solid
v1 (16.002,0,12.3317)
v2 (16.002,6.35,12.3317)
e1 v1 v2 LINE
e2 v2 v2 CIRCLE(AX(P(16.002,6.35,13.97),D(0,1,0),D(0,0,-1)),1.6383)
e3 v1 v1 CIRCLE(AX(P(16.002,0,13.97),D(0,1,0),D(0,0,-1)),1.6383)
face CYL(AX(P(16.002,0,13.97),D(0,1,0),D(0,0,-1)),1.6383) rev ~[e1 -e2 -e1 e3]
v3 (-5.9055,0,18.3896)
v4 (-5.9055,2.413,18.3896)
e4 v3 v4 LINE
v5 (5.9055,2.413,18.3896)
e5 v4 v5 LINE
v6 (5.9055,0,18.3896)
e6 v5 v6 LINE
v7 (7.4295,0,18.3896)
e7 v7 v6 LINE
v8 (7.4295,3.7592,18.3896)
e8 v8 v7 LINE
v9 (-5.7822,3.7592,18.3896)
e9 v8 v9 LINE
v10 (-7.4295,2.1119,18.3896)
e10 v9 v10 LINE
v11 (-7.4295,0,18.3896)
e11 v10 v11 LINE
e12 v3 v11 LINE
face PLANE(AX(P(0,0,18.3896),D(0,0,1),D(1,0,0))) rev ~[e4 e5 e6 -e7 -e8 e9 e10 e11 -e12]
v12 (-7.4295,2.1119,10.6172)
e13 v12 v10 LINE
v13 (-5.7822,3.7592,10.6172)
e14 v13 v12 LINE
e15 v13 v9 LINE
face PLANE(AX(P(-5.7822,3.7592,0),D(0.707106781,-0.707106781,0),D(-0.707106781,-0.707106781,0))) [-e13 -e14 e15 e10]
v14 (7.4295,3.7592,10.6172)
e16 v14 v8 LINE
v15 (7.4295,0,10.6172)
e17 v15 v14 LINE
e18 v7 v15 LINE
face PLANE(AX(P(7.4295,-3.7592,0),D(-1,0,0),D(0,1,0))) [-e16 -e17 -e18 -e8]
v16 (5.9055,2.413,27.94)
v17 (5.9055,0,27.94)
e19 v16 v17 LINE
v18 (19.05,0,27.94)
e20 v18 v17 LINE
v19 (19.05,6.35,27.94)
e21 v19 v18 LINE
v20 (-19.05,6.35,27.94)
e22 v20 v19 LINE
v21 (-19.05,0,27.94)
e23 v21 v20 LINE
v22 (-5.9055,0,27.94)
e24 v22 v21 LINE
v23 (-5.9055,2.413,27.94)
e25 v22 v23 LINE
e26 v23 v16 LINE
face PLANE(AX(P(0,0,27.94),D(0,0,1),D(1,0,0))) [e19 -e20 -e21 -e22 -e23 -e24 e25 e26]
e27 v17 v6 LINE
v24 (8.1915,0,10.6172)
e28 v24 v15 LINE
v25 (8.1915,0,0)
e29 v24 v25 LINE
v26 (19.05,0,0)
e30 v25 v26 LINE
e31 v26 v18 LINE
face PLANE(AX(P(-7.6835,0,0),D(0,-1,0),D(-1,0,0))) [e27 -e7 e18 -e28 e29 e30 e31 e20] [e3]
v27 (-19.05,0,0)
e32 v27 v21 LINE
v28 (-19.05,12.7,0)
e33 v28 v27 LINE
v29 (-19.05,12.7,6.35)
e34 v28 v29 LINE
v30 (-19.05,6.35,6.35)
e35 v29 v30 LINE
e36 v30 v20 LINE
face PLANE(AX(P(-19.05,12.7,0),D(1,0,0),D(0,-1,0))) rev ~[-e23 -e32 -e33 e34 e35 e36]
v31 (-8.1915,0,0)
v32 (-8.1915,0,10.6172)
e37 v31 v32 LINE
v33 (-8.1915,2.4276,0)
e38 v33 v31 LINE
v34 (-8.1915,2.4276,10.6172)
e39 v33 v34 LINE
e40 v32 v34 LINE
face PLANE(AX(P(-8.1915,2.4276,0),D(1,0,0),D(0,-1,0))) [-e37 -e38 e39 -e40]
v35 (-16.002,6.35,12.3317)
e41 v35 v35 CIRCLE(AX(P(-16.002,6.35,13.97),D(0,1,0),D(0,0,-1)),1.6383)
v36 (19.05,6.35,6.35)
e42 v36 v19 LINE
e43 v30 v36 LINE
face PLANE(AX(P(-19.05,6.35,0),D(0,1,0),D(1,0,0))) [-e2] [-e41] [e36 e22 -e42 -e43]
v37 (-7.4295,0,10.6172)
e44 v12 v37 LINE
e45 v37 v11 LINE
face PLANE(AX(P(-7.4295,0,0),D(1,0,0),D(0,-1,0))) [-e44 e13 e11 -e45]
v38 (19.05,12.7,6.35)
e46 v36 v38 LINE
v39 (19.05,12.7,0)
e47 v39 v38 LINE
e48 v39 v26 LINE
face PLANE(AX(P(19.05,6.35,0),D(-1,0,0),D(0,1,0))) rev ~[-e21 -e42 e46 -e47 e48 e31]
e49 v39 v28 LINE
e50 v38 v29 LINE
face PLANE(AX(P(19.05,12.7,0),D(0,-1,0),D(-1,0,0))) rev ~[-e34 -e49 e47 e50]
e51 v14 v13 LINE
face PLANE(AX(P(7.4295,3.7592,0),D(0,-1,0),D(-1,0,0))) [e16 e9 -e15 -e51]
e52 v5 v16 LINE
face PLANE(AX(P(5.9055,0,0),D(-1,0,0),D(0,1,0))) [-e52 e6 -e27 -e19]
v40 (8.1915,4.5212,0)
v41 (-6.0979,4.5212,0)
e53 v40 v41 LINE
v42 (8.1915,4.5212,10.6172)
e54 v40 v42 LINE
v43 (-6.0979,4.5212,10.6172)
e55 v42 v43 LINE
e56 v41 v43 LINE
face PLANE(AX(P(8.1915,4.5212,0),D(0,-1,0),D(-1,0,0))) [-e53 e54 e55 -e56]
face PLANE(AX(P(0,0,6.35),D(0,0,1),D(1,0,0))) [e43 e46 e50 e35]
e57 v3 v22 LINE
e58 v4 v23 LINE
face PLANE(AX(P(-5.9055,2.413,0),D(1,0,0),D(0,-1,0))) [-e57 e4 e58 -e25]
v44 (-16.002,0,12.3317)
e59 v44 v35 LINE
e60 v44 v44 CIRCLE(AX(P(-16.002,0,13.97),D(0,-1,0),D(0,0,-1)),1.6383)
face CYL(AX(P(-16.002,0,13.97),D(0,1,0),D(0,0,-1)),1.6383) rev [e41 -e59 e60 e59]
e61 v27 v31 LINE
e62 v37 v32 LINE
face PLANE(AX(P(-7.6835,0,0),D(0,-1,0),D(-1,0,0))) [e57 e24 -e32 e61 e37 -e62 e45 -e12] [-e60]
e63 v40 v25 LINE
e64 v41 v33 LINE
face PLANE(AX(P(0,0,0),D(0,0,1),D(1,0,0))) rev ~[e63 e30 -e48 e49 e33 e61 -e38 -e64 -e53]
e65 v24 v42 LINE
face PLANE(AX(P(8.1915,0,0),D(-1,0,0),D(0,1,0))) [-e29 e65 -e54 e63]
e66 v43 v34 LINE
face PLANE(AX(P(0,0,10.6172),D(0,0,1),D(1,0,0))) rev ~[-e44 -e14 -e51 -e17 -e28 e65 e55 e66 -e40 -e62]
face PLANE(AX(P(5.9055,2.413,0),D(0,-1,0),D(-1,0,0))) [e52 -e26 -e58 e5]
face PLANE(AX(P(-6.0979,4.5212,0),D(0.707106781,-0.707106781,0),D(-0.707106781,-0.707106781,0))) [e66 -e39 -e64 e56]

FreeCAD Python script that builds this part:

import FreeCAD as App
import Part
import Sketcher
from FreeCAD import Vector
Q = App.Units.Quantity

doc = App.newDocument("Part")
body = doc.addObject("PartDesign::Body", "Body")

sketch1 = body.newObject("Sketcher::SketchObject", "Sketch")
sketch1.AttachmentSupport = (doc.getObject("XY_Plane"), [""])
sketch1.MapMode = "FlatFace"
sketch1.addGeometry(Part.LineSegment(Vector(19, 0, 0), Vector(19, 6, 0)), False)
sketch1.addGeometry(Part.LineSegment(Vector(19, 6, 0), Vector(-19, 6, 0)), False)
sketch1.addGeometry(Part.LineSegment(Vector(-19, 6, 0), Vector(-19, 0, 0)), False)
sketch1.addGeometry(Part.LineSegment(Vector(-19, 0, 0), Vector(19, 0, 0)), False)
sketch1.addConstraint(Sketcher.Constraint("Coincident", 0, 2, 1, 1))
sketch1.addConstraint(Sketcher.Constraint("Coincident", 1, 2, 2, 1))
sketch1.addConstraint(Sketcher.Constraint("Coincident", 2, 2, 3, 1))
sketch1.addConstraint(Sketcher.Constraint("Coincident", 3, 2, 0, 1))
sketch1.addConstraint(Sketcher.Constraint("Vertical", 0))
sketch1.addConstraint(Sketcher.Constraint("Horizontal", 1))
sketch1.addConstraint(Sketcher.Constraint("Vertical", 2))
sketch1.addConstraint(Sketcher.Constraint("Horizontal", 3))
sketch1.addConstraint(Sketcher.Constraint("Symmetric", 2, 2, 3, 2, -1, 1))
sketch1.addConstraint(Sketcher.Constraint("DistanceX", 1, 2, 1, 1, Q("1.5 in")))
sketch1.addConstraint(Sketcher.Constraint("DistanceY", 0, 1, 0, 2, Q("0.25 in")))
pad1 = body.newObject("PartDesign::Pad", "Pad")
pad1.Profile = sketch1
pad1.Length = Q("1.1 in")

sketch2 = body.newObject("Sketcher::SketchObject", "Sketch001")
sketch2.AttachmentSupport = (doc.getObject("XY_Plane"), [""])
sketch2.MapMode = "FlatFace"
sketch2.addGeometry(Part.LineSegment(Vector(7.4, -3.8, 0), Vector(7.4, 3.8, 0)), False)
sketch2.addGeometry(Part.LineSegment(Vector(7.4, 3.8, 0), Vector(-5.8, 3.8, 0)), False)
sketch2.addGeometry(Part.LineSegment(Vector(-5.8, 3.8, 0), Vector(-7.4, 2.1, 0)), False)
sketch2.addGeometry(Part.LineSegment(Vector(-7.4, 2.1, 0), Vector(-7.4, -2.1, 0)), False)
sketch2.addGeometry(Part.LineSegment(Vector(-7.4, -2.1, 0), Vector(-5.8, -3.8, 0)), False)
sketch2.addGeometry(Part.LineSegment(Vector(-5.8, -3.8, 0), Vector(7.4, -3.8, 0)), False)
sketch2.addConstraint(Sketcher.Constraint("Coincident", 0, 2, 1, 1))
sketch2.addConstraint(Sketcher.Constraint("Coincident", 1, 2, 2, 1))
sketch2.addConstraint(Sketcher.Constraint("Coincident", 2, 2, 3, 1))
sketch2.addConstraint(Sketcher.Constraint("Coincident", 3, 2, 4, 1))
sketch2.addConstraint(Sketcher.Constraint("Coincident", 4, 2, 5, 1))
sketch2.addConstraint(Sketcher.Constraint("Coincident", 5, 2, 0, 1))
sketch2.addConstraint(Sketcher.Constraint("Vertical", 0))
sketch2.addConstraint(Sketcher.Constraint("Horizontal", 1))
sketch2.addConstraint(Sketcher.Constraint("Vertical", 3))
sketch2.addConstraint(Sketcher.Constraint("Horizontal", 5))
sketch2.addConstraint(Sketcher.Constraint("Symmetric", 1, 2, 4, 2, -1))
sketch2.addConstraint(Sketcher.Constraint("Perpendicular", 2, 4))
sketch2.addConstraint(Sketcher.Constraint("Equal", 2, 4))
sketch2.addConstraint(Sketcher.Constraint("DistanceY", 0, 1, 0, 2, Q("0.296 in")))
sketch2.addConstraint(Sketcher.Constraint("DistanceY", 3, 2, 3, 1, Q("0.1663 in")))
sketch2.addConstraint(Sketcher.Constraint("DistanceX", 2, 2, 0, 2, Q("0.585 in")))
sketch2.addConstraint(Sketcher.Constraint("DistanceX", -1, 1, 0, 2, Q("0.2925 in")))
pocket1 = body.newObject("PartDesign::Pocket", "Pocket")
pocket1.Profile = sketch2
pocket1.Length = Q("0.724 in")
pocket1.Reversed = True

sketch3 = body.newObject("Sketcher::SketchObject", "Sketch002")
sketch3.AttachmentSupport = (doc.getObject("XY_Plane"), [""])
sketch3.MapMode = "FlatFace"
sketch3.addGeometry(Part.LineSegment(Vector(-8.2, 2.4, 0), Vector(-8.2, -2.4, 0)), False)
sketch3.addGeometry(Part.LineSegment(Vector(-8.2, -2.4, 0), Vector(-6.1, -4.5, 0)), False)
sketch3.addGeometry(Part.LineSegment(Vector(-6.1, -4.5, 0), Vector(8.2, -4.5, 0)), False)
sketch3.addGeometry(Part.LineSegment(Vector(8.2, -4.5, 0), Vector(8.2, 4.5, 0)), False)
sketch3.addGeometry(Part.LineSegment(Vector(8.2, 4.5, 0), Vector(-6.1, 4.5, 0)), False)
sketch3.addGeometry(Part.LineSegment(Vector(-6.1, 4.5, 0), Vector(-8.2, 2.4, 0)), False)
sketch3.addConstraint(Sketcher.Constraint("Coincident", 0, 2, 1, 1))
sketch3.addConstraint(Sketcher.Constraint("Coincident", 1, 2, 2, 1))
sketch3.addConstraint(Sketcher.Constraint("Coincident", 2, 2, 3, 1))
sketch3.addConstraint(Sketcher.Constraint("Coincident", 3, 2, 4, 1))
sketch3.addConstraint(Sketcher.Constraint("Coincident", 4, 2, 5, 1))
sketch3.addConstraint(Sketcher.Constraint("Coincident", 5, 2, 0, 1))
sketch3.addConstraint(Sketcher.Constraint("Vertical", 0))
sketch3.addConstraint(Sketcher.Constraint("Horizontal", 2))
sketch3.addConstraint(Sketcher.Constraint("Vertical", 3))
sketch3.addConstraint(Sketcher.Constraint("Horizontal", 4))
sketch3.addConstraint(Sketcher.Constraint("Symmetric", 1, 2, 4, 2, -1))
sketch3.addConstraint(Sketcher.Constraint("Perpendicular", 1, 5))
sketch3.addConstraint(Sketcher.Constraint("Equal", 1, 5))
sketch3.addConstraint(Sketcher.Constraint("DistanceY", 3, 1, 3, 2, Q("0.356 in")))
sketch3.addConstraint(Sketcher.Constraint("DistanceX", 0, 2, 2, 2, Q("0.645 in")))
sketch3.addConstraint(Sketcher.Constraint("DistanceX", 2, 1, 2, 2, Q("14.2894 mm")))
sketch3.addConstraint(Sketcher.Constraint("DistanceX", 0, 2, -1, 1, Q("0.3225 in")))
pocket2 = body.newObject("PartDesign::Pocket", "Pocket001")
pocket2.Profile = sketch3
pocket2.Length = Q("0.418 in")
pocket2.Reversed = True

sketch4 = body.newObject("Sketcher::SketchObject", "Sketch003")
sketch4.AttachmentSupport = (doc.getObject("XZ_Plane"), [""])
sketch4.MapMode = "FlatFace"
sketch4.addGeometry(Part.Circle(Vector(16, 14, 0), Vector(0, 0, 1), 1.6), False)
sketch4.addConstraint(Sketcher.Constraint("Diameter", 0, Q("0.129 in")))
sketch4.addConstraint(Sketcher.Constraint("DistanceX", -1, 1, 0, 3, Q("0.63 in")))
sketch4.addConstraint(Sketcher.Constraint("DistanceY", -1, 1, 0, 3, Q("0.55 in")))
doc.recompute()
hole = body.newObject("PartDesign::Hole", "Hole")
hole.Profile = sketch4
hole.ThreadType = "None"
hole.Diameter = Q("0.129 in")
hole.DepthType = "ThroughAll"
doc.recompute()

mirrored = body.newObject("PartDesign::Mirrored", "Mirrored")
mirrored.Originals = [hole]
mirrored.MirrorPlane = (doc.getObject("YZ_Plane"), [""])
body.Tip = mirrored

sketch5 = body.newObject("Sketcher::SketchObject", "Sketch004")
sketch5.AttachmentSupport = (doc.getObject("XY_Plane"), [""])
sketch5.MapMode = "FlatFace"
sketch5.addGeometry(Part.LineSegment(Vector(-5.9, 2.4, 0), Vector(-5.9, -2.4, 0)), False)
sketch5.addGeometry(Part.LineSegment(Vector(-5.9, -2.4, 0), Vector(5.9, -2.4, 0)), False)
sketch5.addGeometry(Part.LineSegment(Vector(5.9, -2.4, 0), Vector(5.9, 2.4, 0)), False)
sketch5.addGeometry(Part.LineSegment(Vector(5.9, 2.4, 0), Vector(-5.9, 2.4, 0)), False)
sketch5.addConstraint(Sketcher.Constraint("Coincident", 0, 2, 1, 1))
sketch5.addConstraint(Sketcher.Constraint("Coincident", 1, 2, 2, 1))
sketch5.addConstraint(Sketcher.Constraint("Coincident", 2, 2, 3, 1))
sketch5.addConstraint(Sketcher.Constraint("Coincident", 3, 2, 0, 1))
sketch5.addConstraint(Sketcher.Constraint("Vertical", 0))
sketch5.addConstraint(Sketcher.Constraint("Horizontal", 1))
sketch5.addConstraint(Sketcher.Constraint("Vertical", 2))
sketch5.addConstraint(Sketcher.Constraint("Horizontal", 3))
sketch5.addConstraint(Sketcher.Constraint("Symmetric", 0, 2, 2, 2, -1, 1))
sketch5.addConstraint(Sketcher.Constraint("DistanceY", 0, 2, 0, 1, Q("0.19 in")))
sketch5.addConstraint(Sketcher.Constraint("DistanceX", 1, 1, 1, 2, Q("0.465 in")))
pocket3 = body.newObject("PartDesign::Pocket", "Pocket002")
pocket3.Profile = sketch5
pocket3.Type = "ThroughAll"
pocket3.Reversed = True

sketch6 = body.newObject("Sketcher::SketchObject", "Sketch005")
sketch6.AttachmentSupport = (doc.getObject("XY_Plane"), [""])
sketch6.MapMode = "FlatFace"
sketch6.addGeometry(Part.LineSegment(Vector(-19, 13, 0), Vector(-19, 6, 0)), False)
sketch6.addGeometry(Part.LineSegment(Vector(-19, 6, 0), Vector(19, 6, 0)), False)
sketch6.addGeometry(Part.LineSegment(Vector(19, 6, 0), Vector(19, 13, 0)), False)
sketch6.addGeometry(Part.LineSegment(Vector(19, 13, 0), Vector(-19, 13, 0)), False)
sketch6.addConstraint(Sketcher.Constraint("Coincident", 0, 2, 1, 1))
sketch6.addConstraint(Sketcher.Constraint("Coincident", 1, 2, 2, 1))
sketch6.addConstraint(Sketcher.Constraint("Coincident", 2, 2, 3, 1))
sketch6.addConstraint(Sketcher.Constraint("Coincident", 3, 2, 0, 1))
sketch6.addConstraint(Sketcher.Constraint("Vertical", 0))
sketch6.addConstraint(Sketcher.Constraint("Horizontal", 1))
sketch6.addConstraint(Sketcher.Constraint("Vertical", 2))
sketch6.addConstraint(Sketcher.Constraint("Horizontal", 3))
sketch6.addConstraint(Sketcher.Constraint("DistanceX", 1, 1, 1, 2, Q("1.5 in")))
sketch6.addConstraint(Sketcher.Constraint("DistanceY", 0, 2, 0, 1, Q("0.25 in")))
sketch6.addConstraint(Sketcher.Constraint("DistanceY", -1, 1, 0, 2, Q("0.25 in")))
sketch6.addConstraint(Sketcher.Constraint("DistanceX", 0, 2, -1, 1, Q("0.75 in")))
pad2 = body.newObject("PartDesign::Pad", "Pad001")
pad2.Profile = sketch6
pad2.Length = Q("0.25 in")

doc.recompute()
